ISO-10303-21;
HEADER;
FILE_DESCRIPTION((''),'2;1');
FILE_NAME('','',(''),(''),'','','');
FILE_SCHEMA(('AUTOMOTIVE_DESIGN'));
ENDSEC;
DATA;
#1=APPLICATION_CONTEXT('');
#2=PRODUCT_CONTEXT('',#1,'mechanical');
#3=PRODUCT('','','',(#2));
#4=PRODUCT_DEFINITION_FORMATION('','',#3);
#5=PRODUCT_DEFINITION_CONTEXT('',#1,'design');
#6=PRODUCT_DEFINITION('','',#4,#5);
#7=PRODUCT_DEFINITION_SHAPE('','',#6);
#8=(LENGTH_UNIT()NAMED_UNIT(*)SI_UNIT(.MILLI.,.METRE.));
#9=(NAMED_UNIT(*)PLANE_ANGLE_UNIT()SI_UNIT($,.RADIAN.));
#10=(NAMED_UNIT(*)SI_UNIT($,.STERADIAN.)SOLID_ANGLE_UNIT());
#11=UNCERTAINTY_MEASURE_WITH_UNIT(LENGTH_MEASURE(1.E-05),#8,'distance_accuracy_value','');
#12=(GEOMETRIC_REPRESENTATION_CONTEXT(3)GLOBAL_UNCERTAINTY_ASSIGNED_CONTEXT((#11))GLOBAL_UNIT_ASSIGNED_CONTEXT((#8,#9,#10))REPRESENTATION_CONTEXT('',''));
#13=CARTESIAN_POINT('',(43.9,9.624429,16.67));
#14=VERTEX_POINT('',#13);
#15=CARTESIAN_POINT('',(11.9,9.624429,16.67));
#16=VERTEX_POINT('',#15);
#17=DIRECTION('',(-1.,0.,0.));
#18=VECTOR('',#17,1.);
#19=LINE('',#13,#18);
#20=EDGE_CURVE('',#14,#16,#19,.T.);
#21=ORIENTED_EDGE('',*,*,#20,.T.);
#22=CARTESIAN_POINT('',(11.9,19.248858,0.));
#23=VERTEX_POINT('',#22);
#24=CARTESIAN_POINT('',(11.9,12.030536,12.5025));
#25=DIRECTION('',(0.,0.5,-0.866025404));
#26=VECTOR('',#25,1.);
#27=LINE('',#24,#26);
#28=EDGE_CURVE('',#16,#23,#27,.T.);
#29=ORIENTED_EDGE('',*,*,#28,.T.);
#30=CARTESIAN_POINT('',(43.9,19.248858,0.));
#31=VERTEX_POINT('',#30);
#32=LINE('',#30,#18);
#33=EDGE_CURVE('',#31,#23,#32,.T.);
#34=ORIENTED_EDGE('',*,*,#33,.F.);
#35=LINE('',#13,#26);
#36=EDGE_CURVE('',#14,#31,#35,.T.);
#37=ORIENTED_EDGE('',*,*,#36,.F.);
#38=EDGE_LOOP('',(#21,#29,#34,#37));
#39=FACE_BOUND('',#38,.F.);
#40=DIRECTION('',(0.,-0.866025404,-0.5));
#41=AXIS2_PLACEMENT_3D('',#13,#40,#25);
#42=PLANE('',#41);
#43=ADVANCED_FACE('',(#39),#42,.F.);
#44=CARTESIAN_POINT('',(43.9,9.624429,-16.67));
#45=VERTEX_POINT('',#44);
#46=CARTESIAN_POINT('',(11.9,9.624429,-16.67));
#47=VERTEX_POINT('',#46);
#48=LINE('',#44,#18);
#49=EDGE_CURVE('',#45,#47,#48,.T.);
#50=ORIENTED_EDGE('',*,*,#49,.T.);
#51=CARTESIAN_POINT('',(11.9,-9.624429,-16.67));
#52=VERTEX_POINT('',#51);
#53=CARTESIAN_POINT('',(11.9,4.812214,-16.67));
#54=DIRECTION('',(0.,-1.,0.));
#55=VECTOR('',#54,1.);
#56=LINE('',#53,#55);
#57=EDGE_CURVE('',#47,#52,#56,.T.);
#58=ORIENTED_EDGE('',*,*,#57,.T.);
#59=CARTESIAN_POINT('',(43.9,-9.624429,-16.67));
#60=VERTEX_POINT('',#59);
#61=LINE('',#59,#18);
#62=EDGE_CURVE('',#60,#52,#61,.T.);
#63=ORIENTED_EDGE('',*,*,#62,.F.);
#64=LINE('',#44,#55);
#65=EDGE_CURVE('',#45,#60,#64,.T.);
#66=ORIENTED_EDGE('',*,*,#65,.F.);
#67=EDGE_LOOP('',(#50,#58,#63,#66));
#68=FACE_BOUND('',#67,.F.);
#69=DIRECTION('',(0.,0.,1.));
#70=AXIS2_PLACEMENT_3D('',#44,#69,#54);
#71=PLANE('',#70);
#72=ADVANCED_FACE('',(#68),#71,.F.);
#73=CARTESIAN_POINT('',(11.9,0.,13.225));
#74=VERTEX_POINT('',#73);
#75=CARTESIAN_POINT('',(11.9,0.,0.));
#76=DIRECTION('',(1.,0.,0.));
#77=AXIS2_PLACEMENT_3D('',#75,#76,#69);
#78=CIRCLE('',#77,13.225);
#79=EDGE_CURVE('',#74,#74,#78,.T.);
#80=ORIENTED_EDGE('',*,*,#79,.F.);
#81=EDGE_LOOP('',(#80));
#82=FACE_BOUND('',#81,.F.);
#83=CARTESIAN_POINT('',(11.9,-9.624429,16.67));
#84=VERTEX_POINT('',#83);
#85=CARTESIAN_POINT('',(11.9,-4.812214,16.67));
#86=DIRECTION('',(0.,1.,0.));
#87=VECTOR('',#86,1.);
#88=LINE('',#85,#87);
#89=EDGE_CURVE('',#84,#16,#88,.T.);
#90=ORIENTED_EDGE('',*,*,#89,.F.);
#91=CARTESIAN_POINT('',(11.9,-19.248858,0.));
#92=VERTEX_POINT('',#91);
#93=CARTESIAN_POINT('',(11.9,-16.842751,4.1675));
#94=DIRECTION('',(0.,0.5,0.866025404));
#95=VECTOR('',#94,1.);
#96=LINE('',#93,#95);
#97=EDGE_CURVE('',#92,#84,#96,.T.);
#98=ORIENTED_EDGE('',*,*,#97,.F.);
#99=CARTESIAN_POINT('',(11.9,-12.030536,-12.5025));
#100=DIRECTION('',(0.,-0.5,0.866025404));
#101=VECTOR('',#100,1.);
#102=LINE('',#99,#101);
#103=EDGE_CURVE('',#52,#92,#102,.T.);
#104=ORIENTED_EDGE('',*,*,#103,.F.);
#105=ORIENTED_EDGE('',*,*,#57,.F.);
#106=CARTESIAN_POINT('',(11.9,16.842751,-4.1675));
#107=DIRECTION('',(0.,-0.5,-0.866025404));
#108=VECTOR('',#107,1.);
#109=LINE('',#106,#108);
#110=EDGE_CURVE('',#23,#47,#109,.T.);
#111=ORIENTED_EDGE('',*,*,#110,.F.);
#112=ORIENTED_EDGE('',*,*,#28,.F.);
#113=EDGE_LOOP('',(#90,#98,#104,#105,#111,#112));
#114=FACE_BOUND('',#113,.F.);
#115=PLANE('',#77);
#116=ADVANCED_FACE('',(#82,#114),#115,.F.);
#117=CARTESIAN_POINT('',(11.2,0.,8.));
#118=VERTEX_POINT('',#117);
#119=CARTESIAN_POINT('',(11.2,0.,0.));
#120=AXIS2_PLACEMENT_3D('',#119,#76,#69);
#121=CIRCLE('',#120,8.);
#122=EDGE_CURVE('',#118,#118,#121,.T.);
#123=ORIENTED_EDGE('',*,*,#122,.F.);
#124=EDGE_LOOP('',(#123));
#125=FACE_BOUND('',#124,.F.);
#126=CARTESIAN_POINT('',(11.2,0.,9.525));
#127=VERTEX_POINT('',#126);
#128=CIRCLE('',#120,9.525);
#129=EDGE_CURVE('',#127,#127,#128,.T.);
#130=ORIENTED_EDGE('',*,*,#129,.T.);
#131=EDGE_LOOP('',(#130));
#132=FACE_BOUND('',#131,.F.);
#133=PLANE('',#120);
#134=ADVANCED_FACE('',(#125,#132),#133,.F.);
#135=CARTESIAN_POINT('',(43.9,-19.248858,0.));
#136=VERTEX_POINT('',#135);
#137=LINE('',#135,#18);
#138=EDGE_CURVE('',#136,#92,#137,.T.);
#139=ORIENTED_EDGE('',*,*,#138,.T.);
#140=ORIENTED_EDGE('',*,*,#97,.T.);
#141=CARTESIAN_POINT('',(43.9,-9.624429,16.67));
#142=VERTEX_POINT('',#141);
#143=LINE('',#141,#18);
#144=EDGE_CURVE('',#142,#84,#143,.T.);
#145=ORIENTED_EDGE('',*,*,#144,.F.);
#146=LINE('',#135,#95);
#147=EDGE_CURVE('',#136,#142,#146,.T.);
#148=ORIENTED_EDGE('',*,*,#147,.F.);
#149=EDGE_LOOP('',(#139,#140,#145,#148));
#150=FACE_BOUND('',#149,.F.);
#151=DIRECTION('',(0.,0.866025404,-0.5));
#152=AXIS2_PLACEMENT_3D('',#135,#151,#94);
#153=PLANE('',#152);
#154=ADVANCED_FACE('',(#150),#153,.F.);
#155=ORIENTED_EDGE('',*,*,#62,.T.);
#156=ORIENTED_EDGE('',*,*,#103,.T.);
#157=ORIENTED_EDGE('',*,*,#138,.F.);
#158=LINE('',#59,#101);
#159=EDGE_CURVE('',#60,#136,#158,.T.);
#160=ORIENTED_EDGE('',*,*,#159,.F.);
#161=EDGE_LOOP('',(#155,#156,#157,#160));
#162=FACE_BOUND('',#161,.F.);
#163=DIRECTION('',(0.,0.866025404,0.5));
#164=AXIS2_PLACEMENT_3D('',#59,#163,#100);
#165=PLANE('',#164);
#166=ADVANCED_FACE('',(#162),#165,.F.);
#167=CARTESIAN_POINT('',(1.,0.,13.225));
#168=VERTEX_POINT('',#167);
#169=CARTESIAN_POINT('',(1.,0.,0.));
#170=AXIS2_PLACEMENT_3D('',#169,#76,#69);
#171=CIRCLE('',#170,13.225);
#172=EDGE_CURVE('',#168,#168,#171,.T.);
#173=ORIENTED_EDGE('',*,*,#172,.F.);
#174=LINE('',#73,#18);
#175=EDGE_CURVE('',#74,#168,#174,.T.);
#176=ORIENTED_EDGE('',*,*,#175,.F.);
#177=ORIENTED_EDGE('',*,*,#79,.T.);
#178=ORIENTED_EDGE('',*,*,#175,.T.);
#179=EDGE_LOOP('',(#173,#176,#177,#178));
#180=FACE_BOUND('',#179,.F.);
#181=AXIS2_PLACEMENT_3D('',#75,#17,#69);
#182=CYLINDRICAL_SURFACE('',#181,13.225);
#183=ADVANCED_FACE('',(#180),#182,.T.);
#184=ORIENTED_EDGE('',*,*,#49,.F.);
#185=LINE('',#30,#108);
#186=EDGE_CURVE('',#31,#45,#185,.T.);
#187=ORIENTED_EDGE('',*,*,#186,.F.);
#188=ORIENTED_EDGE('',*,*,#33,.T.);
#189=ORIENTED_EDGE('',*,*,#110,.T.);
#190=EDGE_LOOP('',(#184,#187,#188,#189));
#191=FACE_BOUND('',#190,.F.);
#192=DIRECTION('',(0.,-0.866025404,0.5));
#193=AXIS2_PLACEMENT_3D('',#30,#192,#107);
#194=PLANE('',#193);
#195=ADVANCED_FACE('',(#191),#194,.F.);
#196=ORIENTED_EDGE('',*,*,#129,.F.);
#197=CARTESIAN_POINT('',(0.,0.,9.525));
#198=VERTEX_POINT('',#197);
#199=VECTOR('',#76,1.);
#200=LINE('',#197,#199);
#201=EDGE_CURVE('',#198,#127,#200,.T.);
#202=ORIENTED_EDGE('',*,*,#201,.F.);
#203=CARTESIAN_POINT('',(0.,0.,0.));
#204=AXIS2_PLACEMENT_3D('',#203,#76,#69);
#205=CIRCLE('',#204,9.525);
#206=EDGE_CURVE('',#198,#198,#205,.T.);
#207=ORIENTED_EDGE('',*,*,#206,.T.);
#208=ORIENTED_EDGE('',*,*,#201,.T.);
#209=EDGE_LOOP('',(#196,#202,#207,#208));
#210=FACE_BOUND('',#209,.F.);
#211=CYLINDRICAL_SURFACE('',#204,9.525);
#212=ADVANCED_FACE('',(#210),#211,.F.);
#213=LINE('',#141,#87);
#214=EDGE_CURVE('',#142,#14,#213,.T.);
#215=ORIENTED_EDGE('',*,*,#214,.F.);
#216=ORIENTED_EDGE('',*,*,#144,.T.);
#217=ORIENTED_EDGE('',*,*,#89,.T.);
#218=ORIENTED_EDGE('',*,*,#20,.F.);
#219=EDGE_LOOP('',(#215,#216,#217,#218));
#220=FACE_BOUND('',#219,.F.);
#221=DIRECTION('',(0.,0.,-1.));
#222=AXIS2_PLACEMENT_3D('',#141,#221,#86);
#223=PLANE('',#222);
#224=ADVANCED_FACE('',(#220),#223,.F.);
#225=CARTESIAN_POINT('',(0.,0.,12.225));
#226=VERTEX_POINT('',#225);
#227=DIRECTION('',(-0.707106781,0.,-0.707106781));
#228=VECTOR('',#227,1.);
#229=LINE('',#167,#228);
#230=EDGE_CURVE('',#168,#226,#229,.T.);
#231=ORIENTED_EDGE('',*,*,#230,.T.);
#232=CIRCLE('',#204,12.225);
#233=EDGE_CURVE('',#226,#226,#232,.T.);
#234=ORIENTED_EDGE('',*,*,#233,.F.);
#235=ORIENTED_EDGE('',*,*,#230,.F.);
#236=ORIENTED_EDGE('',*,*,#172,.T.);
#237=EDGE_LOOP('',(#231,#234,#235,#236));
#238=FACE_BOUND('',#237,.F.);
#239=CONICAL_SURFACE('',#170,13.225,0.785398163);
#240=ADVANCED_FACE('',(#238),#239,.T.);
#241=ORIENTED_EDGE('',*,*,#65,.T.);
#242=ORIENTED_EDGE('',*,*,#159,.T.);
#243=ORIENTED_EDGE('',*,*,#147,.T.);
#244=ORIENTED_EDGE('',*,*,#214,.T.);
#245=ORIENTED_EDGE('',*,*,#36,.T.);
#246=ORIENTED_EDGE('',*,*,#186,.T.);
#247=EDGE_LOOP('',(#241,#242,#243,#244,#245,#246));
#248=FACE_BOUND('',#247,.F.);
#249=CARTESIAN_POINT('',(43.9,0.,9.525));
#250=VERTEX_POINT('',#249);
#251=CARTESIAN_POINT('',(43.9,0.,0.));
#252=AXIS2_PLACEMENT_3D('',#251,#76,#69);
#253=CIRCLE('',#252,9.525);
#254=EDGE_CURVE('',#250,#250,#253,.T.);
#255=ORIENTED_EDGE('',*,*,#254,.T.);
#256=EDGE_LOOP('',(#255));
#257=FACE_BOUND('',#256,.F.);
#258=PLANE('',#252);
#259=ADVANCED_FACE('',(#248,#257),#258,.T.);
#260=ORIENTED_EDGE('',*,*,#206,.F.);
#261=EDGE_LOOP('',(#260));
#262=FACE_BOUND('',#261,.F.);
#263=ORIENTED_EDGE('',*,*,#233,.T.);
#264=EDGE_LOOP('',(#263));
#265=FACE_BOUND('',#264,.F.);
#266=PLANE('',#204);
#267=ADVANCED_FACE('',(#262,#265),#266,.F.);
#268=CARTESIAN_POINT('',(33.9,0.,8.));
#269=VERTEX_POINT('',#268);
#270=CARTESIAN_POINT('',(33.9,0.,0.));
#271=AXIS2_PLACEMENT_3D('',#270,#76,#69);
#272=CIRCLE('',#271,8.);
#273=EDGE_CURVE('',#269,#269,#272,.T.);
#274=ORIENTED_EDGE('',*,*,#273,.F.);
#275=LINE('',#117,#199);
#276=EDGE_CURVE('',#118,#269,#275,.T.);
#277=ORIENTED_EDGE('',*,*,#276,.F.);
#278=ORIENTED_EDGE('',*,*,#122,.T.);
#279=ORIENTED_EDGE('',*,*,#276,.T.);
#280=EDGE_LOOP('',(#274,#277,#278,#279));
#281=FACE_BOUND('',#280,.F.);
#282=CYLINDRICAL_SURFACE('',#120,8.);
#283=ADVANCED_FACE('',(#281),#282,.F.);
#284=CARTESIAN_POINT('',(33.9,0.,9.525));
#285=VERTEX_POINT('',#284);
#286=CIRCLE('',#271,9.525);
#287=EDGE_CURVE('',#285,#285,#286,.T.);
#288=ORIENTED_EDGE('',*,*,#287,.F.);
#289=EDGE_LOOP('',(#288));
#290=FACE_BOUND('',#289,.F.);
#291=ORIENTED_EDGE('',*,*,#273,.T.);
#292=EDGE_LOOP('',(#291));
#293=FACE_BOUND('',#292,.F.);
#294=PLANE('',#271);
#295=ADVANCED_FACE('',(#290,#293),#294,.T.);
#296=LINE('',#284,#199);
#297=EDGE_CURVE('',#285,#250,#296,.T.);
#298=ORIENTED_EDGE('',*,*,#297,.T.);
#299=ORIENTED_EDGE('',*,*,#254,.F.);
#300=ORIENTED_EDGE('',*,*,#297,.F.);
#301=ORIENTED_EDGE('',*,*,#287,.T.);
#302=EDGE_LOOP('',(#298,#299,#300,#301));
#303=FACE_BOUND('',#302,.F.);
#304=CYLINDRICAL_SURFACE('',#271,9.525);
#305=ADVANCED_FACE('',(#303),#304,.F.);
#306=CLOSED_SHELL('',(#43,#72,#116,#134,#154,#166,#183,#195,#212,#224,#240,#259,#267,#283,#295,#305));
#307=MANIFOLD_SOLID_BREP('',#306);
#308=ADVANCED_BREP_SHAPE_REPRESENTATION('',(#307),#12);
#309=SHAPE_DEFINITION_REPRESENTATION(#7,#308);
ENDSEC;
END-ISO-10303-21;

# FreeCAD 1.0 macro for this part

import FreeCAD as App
import Part
import Sketcher
Q = App.Units.Quantity


def edges_at(feature, points):
    """Names of the edges that pass closest to the given points."""
    edges = feature.Shape.Edges
    near = lambda p: min(range(len(edges)), key=lambda i: edges[i].distToShape(Part.Vertex(*p))[0])
    return sorted({f"Edge{near(p) + 1}" for p in points})

doc = App.newDocument("Part")
body = doc.addObject("PartDesign::Body", "Body")

sketch1 = body.newObject("Sketcher::SketchObject", "Sketch")
sketch1.AttachmentSupport = (doc.getObject("XZ_Plane"), [""])
sketch1.MapMode = "FlatFace"
sketch1.addGeometry(Part.LineSegment(App.Vector(33.9, 9.5, 0), App.Vector(43.9, 9.5, 0)), False)
sketch1.addGeometry(Part.LineSegment(App.Vector(43.9, 9.5, 0), App.Vector(43.9, 20, 0)), False)
sketch1.addGeometry(Part.LineSegment(App.Vector(43.9, 20, 0), App.Vector(11.9, 20, 0)), False)
sketch1.addGeometry(Part.LineSegment(App.Vector(11.9, 20, 0), App.Vector(11.9, 13.2, 0)), False)
sketch1.addGeometry(Part.LineSegment(App.Vector(11.9, 13.2, 0), App.Vector(0, 13.2, 0)), False)
sketch1.addGeometry(Part.LineSegment(App.Vector(0, 13.2, 0), App.Vector(0, 9.5, 0)), False)
sketch1.addGeometry(Part.LineSegment(App.Vector(0, 9.5, 0), App.Vector(11.2, 9.5, 0)), False)
sketch1.addGeometry(Part.LineSegment(App.Vector(11.2, 9.5, 0), App.Vector(11.2, 8, 0)), False)
sketch1.addGeometry(Part.LineSegment(App.Vector(11.2, 8, 0), App.Vector(33.9, 8, 0)), False)
sketch1.addGeometry(Part.LineSegment(App.Vector(33.9, 8, 0), App.Vector(33.9, 9.5, 0)), False)
sketch1.addConstraint(Sketcher.Constraint("Coincident", 0, 2, 1, 1))
sketch1.addConstraint(Sketcher.Constraint("Coincident", 1, 2, 2, 1))
sketch1.addConstraint(Sketcher.Constraint("Coincident", 2, 2, 3, 1))
sketch1.addConstraint(Sketcher.Constraint("Coincident", 3, 2, 4, 1))
sketch1.addConstraint(Sketcher.Constraint("Coincident", 4, 2, 5, 1))
sketch1.addConstraint(Sketcher.Constraint("Coincident", 5, 2, 6, 1))
sketch1.addConstraint(Sketcher.Constraint("Coincident", 6, 2, 7, 1))
sketch1.addConstraint(Sketcher.Constraint("Coincident", 7, 2, 8, 1))
sketch1.addConstraint(Sketcher.Constraint("Coincident", 8, 2, 9, 1))
sketch1.addConstraint(Sketcher.Constraint("Coincident", 9, 2, 0, 1))
sketch1.addConstraint(Sketcher.Constraint("Horizontal", 0))
sketch1.addConstraint(Sketcher.Constraint("Vertical", 1))
sketch1.addConstraint(Sketcher.Constraint("Horizontal", 2))
sketch1.addConstraint(Sketcher.Constraint("Vertical", 3))
sketch1.addConstraint(Sketcher.Constraint("Horizontal", 4))
sketch1.addConstraint(Sketcher.Constraint("Vertical", 5))
sketch1.addConstraint(Sketcher.Constraint("Horizontal", 6))
sketch1.addConstraint(Sketcher.Constraint("Vertical", 7))
sketch1.addConstraint(Sketcher.Constraint("Horizontal", 8))
sketch1.addConstraint(Sketcher.Constraint("Vertical", 9))
sketch1.addConstraint(Sketcher.Constraint("PointOnObject", 4, 2, -2))
sketch1.addConstraint(Sketcher.Constraint("Horizontal", 0, 2, 5, 2))
sketch1.addConstraint(Sketcher.Constraint("DistanceX", 0, 1, 0, 2, 10.0))
sketch1.addConstraint(Sketcher.Constraint("DistanceX", 2, 2, 2, 1, 32.0))
sketch1.addConstraint(Sketcher.Constraint("DistanceX", 4, 2, 4, 1, 11.9))
sketch1.addConstraint(Sketcher.Constraint("DistanceX", 6, 1, 6, 2, 11.2))
sketch1.addConstraint(Sketcher.Constraint("DistanceY", 5, 2, 5, 1, 3.7))
sketch1.addConstraint(Sketcher.Constraint("DistanceY", -1, 1, 1, 2, 20.0))
sketch1.addConstraint(Sketcher.Constraint("DistanceY", -1, 1, 7, 2, 8.0))
sketch1.addConstraint(Sketcher.Constraint("DistanceY", 1, 1, 1, 2, 10.475))
revolution = body.newObject("PartDesign::Revolution", "Revolution")
revolution.Profile = sketch1
revolution.ReferenceAxis = (sketch1, ["H_Axis"])
revolution.Angle = 360

sketch2 = body.newObject("Sketcher::SketchObject", "Sketch001")
sketch2.AttachmentSupport = (doc.getObject("YZ_Plane"), [""])
sketch2.MapMode = "FlatFace"
sketch2.AttachmentOffset = App.Placement(App.Vector(0, 0, 43.9), App.Rotation())
sketch2.addGeometry(Part.Circle(App.Vector(0, 0, 0), App.Vector(0, 0, 1), 20), False)
sketch2.addGeometry(Part.LineSegment(App.Vector(-19, 0, 0), App.Vector(-10, 17, 0)), False)
sketch2.addGeometry(Part.LineSegment(App.Vector(-10, 17, 0), App.Vector(10, 17, 0)), False)
sketch2.addGeometry(Part.LineSegment(App.Vector(10, 17, 0), App.Vector(19, 0, 0)), False)
sketch2.addGeometry(Part.LineSegment(App.Vector(19, 0, 0), App.Vector(10, -17, 0)), False)
sketch2.addGeometry(Part.LineSegment(App.Vector(10, -17, 0), App.Vector(-10, -17, 0)), False)
sketch2.addGeometry(Part.LineSegment(App.Vector(-10, -17, 0), App.Vector(-19, 0, 0)), False)
sketch2.addConstraint(Sketcher.Constraint("Coincident", 1, 2, 2, 1))
sketch2.addConstraint(Sketcher.Constraint("Coincident", 2, 2, 3, 1))
sketch2.addConstraint(Sketcher.Constraint("Coincident", 3, 2, 4, 1))
sketch2.addConstraint(Sketcher.Constraint("Coincident", 4, 2, 5, 1))
sketch2.addConstraint(Sketcher.Constraint("Coincident", 5, 2, 6, 1))
sketch2.addConstraint(Sketcher.Constraint("Coincident", 6, 2, 1, 1))
sketch2.addConstraint(Sketcher.Constraint("Horizontal", 2))
sketch2.addConstraint(Sketcher.Constraint("Horizontal", 5))
sketch2.addConstraint(Sketcher.Constraint("Coincident", 0, 3, -1, 1))
sketch2.addConstraint(Sketcher.Constraint("Symmetric", 1, 2, 4, 2, -1, 1))
sketch2.addConstraint(Sketcher.Constraint("Symmetric", 3, 2, 6, 2, -1, 1))
sketch2.addConstraint(Sketcher.Constraint("PointOnObject", 3, 2, -1))
sketch2.addConstraint(Sketcher.Constraint("Parallel", 3, 6))
sketch2.addConstraint(Sketcher.Constraint("Vertical", 2, 2, 4, 2))
sketch2.addConstraint(Sketcher.Constraint("Diameter", 0, 40.0))
sketch2.addConstraint(Sketcher.Constraint("Angle", 1, Q("60 deg")))
sketch2.addConstraint(Sketcher.Constraint("DistanceY", -1, 1, 1, 2, 16.67))
sketch2.addConstraint(Sketcher.Constraint("DistanceX", 2, 1, 2, 2, 19.248858))
pocket1 = body.newObject("PartDesign::Pocket", "Pocket")
pocket1.Profile = sketch2
pocket1.Type = "ThroughAll"
doc.recompute()

chamfer = body.newObject("PartDesign::Chamfer", "Chamfer")
chamfer.Base = (pocket1, edges_at(pocket1, [(0, 0, -13.225)]))
chamfer.Size = 1

doc.recompute()
